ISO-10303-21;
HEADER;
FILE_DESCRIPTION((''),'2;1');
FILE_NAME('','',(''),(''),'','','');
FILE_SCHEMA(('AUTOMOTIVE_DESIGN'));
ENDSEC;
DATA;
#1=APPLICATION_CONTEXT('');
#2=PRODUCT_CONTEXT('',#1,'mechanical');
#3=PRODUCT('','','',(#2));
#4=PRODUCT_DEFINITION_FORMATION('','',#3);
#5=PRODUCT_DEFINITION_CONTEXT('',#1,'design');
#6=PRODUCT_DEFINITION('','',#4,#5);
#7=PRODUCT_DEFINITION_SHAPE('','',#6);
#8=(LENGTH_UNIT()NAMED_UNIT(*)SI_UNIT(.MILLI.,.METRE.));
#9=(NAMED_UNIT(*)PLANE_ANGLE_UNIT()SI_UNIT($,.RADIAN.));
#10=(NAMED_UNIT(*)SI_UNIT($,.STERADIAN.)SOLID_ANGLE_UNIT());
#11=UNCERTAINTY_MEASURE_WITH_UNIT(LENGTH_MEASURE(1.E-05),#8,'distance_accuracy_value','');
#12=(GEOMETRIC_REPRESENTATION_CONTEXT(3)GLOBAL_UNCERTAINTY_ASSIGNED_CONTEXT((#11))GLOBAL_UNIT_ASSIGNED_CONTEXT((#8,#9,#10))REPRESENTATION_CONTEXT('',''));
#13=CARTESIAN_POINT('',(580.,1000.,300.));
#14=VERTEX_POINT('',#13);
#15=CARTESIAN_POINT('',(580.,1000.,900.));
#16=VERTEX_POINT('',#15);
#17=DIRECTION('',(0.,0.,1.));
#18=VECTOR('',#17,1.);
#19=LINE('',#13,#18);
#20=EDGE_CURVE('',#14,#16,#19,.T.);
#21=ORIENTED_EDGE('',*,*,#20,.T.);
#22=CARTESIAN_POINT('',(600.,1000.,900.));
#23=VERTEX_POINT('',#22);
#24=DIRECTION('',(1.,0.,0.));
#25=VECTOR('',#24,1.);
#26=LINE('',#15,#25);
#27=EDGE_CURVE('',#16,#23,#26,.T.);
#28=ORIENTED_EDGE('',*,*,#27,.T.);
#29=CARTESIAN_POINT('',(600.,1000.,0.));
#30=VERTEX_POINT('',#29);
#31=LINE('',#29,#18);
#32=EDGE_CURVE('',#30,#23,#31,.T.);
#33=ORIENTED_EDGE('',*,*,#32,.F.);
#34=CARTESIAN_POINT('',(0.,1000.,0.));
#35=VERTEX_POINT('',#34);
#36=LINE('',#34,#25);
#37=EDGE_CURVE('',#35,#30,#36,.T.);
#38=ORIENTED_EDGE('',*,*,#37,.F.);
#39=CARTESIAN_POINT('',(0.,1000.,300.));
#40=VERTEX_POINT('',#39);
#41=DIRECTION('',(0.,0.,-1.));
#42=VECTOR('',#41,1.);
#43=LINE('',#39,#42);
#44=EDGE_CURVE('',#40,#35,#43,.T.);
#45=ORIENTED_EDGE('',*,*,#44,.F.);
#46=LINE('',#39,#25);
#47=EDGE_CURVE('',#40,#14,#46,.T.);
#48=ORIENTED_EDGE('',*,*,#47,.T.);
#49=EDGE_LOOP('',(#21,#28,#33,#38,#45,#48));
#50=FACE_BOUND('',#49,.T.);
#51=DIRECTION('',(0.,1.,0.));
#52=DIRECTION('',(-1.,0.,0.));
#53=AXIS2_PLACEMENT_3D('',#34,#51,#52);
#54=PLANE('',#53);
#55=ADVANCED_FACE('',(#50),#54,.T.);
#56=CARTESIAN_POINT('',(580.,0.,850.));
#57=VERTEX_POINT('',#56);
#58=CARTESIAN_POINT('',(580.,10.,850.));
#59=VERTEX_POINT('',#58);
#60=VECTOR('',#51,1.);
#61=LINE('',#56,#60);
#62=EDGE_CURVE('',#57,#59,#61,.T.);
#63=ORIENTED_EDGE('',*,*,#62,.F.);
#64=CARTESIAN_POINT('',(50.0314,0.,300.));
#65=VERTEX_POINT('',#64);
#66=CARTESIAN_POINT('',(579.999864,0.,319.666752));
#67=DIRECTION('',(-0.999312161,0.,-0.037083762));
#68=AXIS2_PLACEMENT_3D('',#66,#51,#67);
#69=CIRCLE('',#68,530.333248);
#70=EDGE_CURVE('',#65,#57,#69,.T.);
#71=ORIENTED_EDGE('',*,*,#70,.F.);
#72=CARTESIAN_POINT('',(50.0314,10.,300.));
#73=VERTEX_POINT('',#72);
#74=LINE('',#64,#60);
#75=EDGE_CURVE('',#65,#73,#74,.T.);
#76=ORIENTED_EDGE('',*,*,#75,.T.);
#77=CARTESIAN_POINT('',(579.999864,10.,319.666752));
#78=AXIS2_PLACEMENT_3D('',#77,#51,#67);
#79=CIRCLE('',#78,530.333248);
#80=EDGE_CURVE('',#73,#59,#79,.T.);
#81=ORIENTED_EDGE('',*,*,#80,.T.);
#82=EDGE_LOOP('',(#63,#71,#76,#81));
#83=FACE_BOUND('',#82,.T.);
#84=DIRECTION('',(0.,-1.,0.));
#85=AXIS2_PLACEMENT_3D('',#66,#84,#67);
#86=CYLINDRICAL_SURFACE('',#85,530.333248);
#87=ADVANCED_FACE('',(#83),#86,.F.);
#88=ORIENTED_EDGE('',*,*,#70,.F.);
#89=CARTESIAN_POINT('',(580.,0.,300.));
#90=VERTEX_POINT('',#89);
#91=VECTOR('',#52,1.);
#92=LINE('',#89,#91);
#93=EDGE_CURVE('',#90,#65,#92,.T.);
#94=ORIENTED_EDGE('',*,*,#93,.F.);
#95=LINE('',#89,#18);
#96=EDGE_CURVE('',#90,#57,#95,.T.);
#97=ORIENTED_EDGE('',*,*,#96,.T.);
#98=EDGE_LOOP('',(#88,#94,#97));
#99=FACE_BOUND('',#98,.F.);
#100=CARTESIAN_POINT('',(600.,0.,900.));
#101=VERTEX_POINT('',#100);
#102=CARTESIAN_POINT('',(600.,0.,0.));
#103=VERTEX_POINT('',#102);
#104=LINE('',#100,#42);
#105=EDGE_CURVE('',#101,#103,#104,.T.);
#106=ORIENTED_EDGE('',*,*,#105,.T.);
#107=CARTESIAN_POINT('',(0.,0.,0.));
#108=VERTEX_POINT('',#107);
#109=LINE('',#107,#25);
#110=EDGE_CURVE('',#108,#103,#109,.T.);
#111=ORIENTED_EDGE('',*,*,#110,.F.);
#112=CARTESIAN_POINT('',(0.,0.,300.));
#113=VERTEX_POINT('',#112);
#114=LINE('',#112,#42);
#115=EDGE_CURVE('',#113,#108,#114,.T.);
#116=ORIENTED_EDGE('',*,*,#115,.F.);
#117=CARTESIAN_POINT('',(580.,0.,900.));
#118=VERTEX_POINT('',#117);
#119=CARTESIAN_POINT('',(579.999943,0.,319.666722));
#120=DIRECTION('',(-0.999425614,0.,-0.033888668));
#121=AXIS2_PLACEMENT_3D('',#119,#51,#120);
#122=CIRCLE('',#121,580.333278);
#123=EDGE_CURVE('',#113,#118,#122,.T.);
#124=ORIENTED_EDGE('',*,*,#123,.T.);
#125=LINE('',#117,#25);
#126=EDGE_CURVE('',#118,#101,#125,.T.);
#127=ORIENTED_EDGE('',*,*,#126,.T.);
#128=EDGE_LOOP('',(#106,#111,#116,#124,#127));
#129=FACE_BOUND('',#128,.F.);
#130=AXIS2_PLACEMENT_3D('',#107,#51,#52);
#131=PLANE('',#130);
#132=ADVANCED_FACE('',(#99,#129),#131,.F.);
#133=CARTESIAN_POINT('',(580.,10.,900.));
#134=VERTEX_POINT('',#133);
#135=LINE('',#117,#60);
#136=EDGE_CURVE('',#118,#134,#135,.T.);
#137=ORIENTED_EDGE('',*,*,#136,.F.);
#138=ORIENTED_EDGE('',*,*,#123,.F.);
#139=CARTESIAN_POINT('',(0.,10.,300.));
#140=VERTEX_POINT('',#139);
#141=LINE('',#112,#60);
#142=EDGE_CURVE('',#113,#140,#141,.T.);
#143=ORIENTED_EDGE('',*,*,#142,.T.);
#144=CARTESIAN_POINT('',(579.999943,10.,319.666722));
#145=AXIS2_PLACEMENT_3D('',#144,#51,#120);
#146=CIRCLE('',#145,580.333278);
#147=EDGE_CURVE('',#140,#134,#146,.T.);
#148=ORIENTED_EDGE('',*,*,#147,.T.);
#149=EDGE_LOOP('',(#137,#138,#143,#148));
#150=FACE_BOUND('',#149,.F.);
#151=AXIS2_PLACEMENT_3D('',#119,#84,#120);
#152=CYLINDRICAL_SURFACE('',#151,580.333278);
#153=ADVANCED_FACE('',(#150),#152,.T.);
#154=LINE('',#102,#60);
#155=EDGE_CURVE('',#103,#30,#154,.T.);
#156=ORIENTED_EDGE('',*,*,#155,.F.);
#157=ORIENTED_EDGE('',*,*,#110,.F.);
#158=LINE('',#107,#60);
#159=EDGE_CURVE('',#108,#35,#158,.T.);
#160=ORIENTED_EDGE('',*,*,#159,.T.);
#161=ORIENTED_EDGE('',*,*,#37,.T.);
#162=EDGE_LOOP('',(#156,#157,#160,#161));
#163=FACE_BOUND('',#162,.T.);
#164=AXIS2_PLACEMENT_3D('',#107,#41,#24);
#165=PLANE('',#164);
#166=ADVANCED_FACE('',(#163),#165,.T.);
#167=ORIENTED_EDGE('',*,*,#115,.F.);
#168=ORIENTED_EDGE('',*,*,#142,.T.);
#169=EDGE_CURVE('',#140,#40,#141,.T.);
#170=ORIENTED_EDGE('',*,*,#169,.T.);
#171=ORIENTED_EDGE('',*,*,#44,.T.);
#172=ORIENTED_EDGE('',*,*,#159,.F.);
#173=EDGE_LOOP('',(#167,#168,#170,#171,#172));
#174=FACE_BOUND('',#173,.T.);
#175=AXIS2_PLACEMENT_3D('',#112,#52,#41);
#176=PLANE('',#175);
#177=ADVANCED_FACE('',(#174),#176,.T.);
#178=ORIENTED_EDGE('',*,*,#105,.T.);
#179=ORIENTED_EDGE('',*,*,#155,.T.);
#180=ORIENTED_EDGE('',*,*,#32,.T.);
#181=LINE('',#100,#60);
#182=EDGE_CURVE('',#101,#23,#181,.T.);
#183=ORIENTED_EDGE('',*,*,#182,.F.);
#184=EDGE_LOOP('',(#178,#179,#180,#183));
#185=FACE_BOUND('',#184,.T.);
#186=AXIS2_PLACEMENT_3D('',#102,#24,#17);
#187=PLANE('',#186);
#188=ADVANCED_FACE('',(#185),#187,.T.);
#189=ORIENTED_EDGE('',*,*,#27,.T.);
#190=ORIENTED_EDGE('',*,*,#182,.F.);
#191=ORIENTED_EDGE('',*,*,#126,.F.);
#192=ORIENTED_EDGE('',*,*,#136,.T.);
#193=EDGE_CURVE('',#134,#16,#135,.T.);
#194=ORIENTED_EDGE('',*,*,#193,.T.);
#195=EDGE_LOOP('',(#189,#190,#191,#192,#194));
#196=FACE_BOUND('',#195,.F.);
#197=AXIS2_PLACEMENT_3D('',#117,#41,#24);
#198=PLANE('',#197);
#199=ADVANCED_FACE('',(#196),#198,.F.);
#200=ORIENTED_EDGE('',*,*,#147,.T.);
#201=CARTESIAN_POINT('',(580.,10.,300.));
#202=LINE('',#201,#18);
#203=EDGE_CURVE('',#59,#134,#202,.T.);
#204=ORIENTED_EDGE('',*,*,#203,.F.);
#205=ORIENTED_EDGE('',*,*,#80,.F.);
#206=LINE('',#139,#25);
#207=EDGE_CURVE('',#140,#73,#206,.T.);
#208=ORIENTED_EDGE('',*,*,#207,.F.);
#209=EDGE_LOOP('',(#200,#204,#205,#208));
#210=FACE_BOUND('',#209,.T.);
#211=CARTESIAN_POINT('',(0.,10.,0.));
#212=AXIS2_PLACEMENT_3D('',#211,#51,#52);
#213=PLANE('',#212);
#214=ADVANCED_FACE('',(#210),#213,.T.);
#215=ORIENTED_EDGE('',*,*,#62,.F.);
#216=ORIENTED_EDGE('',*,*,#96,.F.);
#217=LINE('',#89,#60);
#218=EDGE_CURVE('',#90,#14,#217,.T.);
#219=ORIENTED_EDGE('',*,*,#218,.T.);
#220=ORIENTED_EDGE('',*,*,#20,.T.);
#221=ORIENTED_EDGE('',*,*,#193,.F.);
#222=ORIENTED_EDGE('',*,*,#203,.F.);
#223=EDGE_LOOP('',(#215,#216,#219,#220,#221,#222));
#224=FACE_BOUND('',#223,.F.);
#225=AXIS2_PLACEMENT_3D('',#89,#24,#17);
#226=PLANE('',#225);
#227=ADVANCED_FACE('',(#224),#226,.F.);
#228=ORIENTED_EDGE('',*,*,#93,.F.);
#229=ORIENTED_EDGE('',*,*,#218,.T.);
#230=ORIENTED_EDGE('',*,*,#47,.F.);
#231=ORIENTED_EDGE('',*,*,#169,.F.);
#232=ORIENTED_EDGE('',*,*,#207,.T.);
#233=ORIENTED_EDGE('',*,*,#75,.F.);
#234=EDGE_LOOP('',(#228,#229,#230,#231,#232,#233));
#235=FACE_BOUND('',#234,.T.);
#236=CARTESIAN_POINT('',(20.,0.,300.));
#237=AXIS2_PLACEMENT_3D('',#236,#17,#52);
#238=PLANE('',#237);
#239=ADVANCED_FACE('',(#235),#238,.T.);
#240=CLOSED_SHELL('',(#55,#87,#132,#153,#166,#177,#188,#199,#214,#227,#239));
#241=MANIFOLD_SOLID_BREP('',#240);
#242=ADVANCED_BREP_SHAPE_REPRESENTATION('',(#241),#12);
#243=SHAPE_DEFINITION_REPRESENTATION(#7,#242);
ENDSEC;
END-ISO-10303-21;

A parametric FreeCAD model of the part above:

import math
import FreeCAD as App
import Part
import Sketcher

V = App.Vector


def add_polygon(sketch, points):
    """Adds a closed chain of lines whose ends are joined by coincident constraints."""
    first, n = sketch.GeometryCount, len(points)
    for a, b in zip(points, points[1:] + points[:1]):
        sketch.addGeometry(Part.LineSegment(App.Vector(*a, 0), App.Vector(*b, 0)), False)
    for i in range(n):
        sketch.addConstraint(Sketcher.Constraint("Coincident", first + i, 2, first + (i + 1) % n, 1))

doc = App.newDocument("Part")
body = doc.addObject("PartDesign::Body", "Body")

sketch1 = body.newObject("Sketcher::SketchObject", "Sketch")
sketch1.AttachmentSupport = (doc.getObject("XZ_Plane"), [""])
sketch1.MapMode = "FlatFace"
add_polygon(sketch1, [(600, 0), (0, 0), (0, 300), (580, 300), (580, 900), (600, 900)])
sketch1.addConstraint(Sketcher.Constraint("Horizontal", 0))
sketch1.addConstraint(Sketcher.Constraint("Vertical", 1))
sketch1.addConstraint(Sketcher.Constraint("Horizontal", 2))
sketch1.addConstraint(Sketcher.Constraint("Vertical", 3))
sketch1.addConstraint(Sketcher.Constraint("Horizontal", 4))
sketch1.addConstraint(Sketcher.Constraint("Vertical", 5))
sketch1.addConstraint(Sketcher.Constraint("Coincident", 0, 2, -1, 1))
sketch1.addConstraint(Sketcher.Constraint("Equal", 0, 3))
sketch1.addConstraint(Sketcher.Constraint("DistanceX", 0, 2, 0, 1, 600.0))
sketch1.addConstraint(Sketcher.Constraint("DistanceX", 4, 1, 4, 2, 20.0))
sketch1.addConstraint(Sketcher.Constraint("DistanceY", 1, 1, 1, 2, 300.0))
pad1 = body.newObject("PartDesign::Pad", "Pad")
pad1.Profile = sketch1
pad1.Length = 1000
pad1.Reversed = True

sketch2 = body.newObject("Sketcher::SketchObject", "Sketch001")
sketch2.AttachmentSupport = (doc.getObject("XZ_Plane"), [""])
sketch2.MapMode = "FlatFace"
sketch2.addGeometry(Part.LineSegment(V(50.0314, 300, 0), V(0, 300, 0)), False)
sketch2.addGeometry(Part.ArcOfCircle(Part.Circle(V(580, 319.6667, 0), V(0, 0, 1), 580.333334), math.radians(90), math.radians(181.942047)), False)
sketch2.addGeometry(Part.LineSegment(V(580, 900, 0), V(580, 850, 0)), False)
sketch2.addGeometry(Part.ArcOfCircle(Part.Circle(V(580, 319.6667, 0), V(0, 0, 1), 530.333382), math.radians(90), math.radians(182.125224)), False)
sketch2.addConstraint(Sketcher.Constraint("Coincident", 0, 2, 1, 2))
sketch2.addConstraint(Sketcher.Constraint("Coincident", 1, 1, 2, 1))
sketch2.addConstraint(Sketcher.Constraint("Coincident", 2, 2, 3, 1))
sketch2.addConstraint(Sketcher.Constraint("Coincident", 3, 2, 0, 1))
sketch2.addConstraint(Sketcher.Constraint("Horizontal", 0))
sketch2.addConstraint(Sketcher.Constraint("Vertical", 2))
sketch2.addConstraint(Sketcher.Constraint("Coincident", 3, 3, 1, 3))
sketch2.addConstraint(Sketcher.Constraint("PointOnObject", 0, 2, -2))
sketch2.addConstraint(Sketcher.Constraint("DistanceY", 2, 2, 2, 1, 50.0))
sketch2.addConstraint(Sketcher.Constraint("DistanceX", -1, 1, 1, 3, 580.0))
sketch2.addConstraint(Sketcher.Constraint("DistanceY", -1, 1, 0, 2, 300.0))
sketch2.addConstraint(Sketcher.Constraint("DistanceY", -1, 1, 1, 1, 900.0))
sketch2.addConstraint(Sketcher.Constraint("DistanceX", -1, 1, 2, 2, 580.0))
pad2 = body.newObject("PartDesign::Pad", "Pad001")
pad2.Profile = sketch2
pad2.Length = 10
pad2.Reversed = True

doc.recompute()
